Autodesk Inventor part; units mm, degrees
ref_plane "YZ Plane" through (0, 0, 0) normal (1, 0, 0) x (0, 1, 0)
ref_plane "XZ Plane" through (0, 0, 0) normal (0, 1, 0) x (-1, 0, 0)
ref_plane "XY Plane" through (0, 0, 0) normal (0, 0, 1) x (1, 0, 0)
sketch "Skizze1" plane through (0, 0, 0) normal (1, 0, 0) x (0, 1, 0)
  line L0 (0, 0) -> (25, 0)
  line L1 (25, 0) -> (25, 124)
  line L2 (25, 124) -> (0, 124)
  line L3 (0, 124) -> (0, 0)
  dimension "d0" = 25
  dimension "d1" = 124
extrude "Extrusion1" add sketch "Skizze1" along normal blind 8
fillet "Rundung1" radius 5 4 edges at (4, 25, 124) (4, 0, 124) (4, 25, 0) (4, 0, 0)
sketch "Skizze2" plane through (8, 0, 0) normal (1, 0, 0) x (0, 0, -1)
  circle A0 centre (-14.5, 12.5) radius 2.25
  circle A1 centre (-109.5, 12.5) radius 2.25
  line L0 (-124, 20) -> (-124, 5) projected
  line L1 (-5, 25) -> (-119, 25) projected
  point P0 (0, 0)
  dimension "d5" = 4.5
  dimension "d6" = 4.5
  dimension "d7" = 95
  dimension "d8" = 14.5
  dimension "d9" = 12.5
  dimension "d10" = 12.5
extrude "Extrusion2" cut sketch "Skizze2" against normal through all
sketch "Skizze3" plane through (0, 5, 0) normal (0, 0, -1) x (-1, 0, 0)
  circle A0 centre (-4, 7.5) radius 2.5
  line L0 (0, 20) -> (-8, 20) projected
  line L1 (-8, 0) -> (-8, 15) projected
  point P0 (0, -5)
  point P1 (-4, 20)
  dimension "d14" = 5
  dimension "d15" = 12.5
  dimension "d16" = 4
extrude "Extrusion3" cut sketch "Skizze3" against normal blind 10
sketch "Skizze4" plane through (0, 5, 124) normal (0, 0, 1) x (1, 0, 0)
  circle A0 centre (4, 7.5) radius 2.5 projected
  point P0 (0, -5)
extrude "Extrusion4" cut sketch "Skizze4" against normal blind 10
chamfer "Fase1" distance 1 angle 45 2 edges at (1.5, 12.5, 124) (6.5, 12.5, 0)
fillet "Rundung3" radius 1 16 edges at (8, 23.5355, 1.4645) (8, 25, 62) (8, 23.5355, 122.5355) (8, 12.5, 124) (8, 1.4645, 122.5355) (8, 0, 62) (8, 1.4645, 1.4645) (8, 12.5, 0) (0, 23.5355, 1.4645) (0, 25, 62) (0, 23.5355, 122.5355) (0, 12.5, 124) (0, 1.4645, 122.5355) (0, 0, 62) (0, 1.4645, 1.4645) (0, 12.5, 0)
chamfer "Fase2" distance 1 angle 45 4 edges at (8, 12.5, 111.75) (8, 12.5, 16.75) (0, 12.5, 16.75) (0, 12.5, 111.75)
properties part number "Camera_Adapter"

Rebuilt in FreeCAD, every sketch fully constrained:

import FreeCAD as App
import Part
import Sketcher


def edges_at(feature, points):
    """Names of the edges that pass closest to the given points."""
    edges = feature.Shape.Edges
    near = lambda p: min(range(len(edges)), key=lambda i: edges[i].distToShape(Part.Vertex(*p))[0])
    return sorted({f"Edge{near(p) + 1}" for p in points})


def add_polygon(sketch, points):
    """Adds a closed chain of lines whose ends are joined by coincident constraints."""
    first, n = sketch.GeometryCount, len(points)
    for a, b in zip(points, points[1:] + points[:1]):
        sketch.addGeometry(Part.LineSegment(App.Vector(*a, 0), App.Vector(*b, 0)), False)
    for i in range(n):
        sketch.addConstraint(Sketcher.Constraint("Coincident", first + i, 2, first + (i + 1) % n, 1))

doc = App.newDocument("Part")
body = doc.addObject("PartDesign::Body", "Body")

# Sketch on YZ plane
sketch1 = body.newObject("Sketcher::SketchObject", "Sketch")
sketch1.AttachmentSupport = (doc.getObject("YZ_Plane"), [""])
sketch1.MapMode = "FlatFace"
add_polygon(sketch1, [(0, 124), (0, 0), (25, 0), (25, 124)])  # lines 0-3
sketch1.addConstraint(Sketcher.Constraint("Vertical", 0))
sketch1.addConstraint(Sketcher.Constraint("Horizontal", 1))
sketch1.addConstraint(Sketcher.Constraint("Vertical", 2))
sketch1.addConstraint(Sketcher.Constraint("Horizontal", 3))
sketch1.addConstraint(Sketcher.Constraint("Coincident", 0, 2, -1, 1))
sketch1.addConstraint(Sketcher.Constraint("DistanceX", 1, 1, 1, 2, 25.0))
sketch1.addConstraint(Sketcher.Constraint("DistanceY", 0, 2, 0, 1, 124.0))
pad1 = body.newObject("PartDesign::Pad", "Pad")
pad1.Profile = sketch1
pad1.Length = 8
doc.recompute()

fillet = body.newObject("PartDesign::Fillet", "Fillet")
fillet.Base = (pad1, edges_at(pad1, [
    (4, 25, 124),
    (4, 0, 124),
    (4, 25, 0),
    (4, 0, 0),
]))
fillet.Radius = 5

# Sketch on YZ plane
sketch2 = body.newObject("Sketcher::SketchObject", "Sketch001")
sketch2.AttachmentSupport = (doc.getObject("YZ_Plane"), [""])
sketch2.MapMode = "FlatFace"
sketch2.AttachmentOffset = App.Placement(App.Vector(0, 0, 8), App.Rotation())
sketch2.addGeometry(Part.Circle(App.Vector(12.5, 14.5, 0), App.Vector(0, 0, 1), 2.25), False)
sketch2.addGeometry(Part.Circle(App.Vector(12.5, 109.5, 0), App.Vector(0, 0, 1), 2.25), False)
sketch2.addConstraint(Sketcher.Constraint("Equal", 0, 1))
sketch2.addConstraint(Sketcher.Constraint("Vertical", 0, 3, 1, 3))
sketch2.addConstraint(Sketcher.Constraint("Diameter", 0, 4.5))
sketch2.addConstraint(Sketcher.Constraint("DistanceY", 0, 3, 1, 3, 95.0))
sketch2.addConstraint(Sketcher.Constraint("DistanceX", -1, 1, 0, 3, 12.5))
sketch2.addConstraint(Sketcher.Constraint("DistanceY", -1, 1, 0, 3, 14.5))
pocket1 = body.newObject("PartDesign::Pocket", "Pocket")
pocket1.Profile = sketch2
pocket1.Type = "ThroughAll"

# Sketch on XY plane
sketch3 = body.newObject("Sketcher::SketchObject", "Sketch002")
sketch3.AttachmentSupport = (doc.getObject("XY_Plane"), [""])
sketch3.MapMode = "FlatFace"
sketch3.addGeometry(Part.Circle(App.Vector(4, 12.5, 0), App.Vector(0, 0, 1), 2.5), False)
sketch3.addConstraint(Sketcher.Constraint("Diameter", 0, 5.0))
sketch3.addConstraint(Sketcher.Constraint("DistanceX", -1, 1, 0, 3, 4.0))
sketch3.addConstraint(Sketcher.Constraint("DistanceY", -1, 1, 0, 3, 12.5))
pocket2 = body.newObject("PartDesign::Pocket", "Pocket001")
pocket2.Profile = sketch3
pocket2.Length = 10
pocket2.Reversed = True

# Sketch on XY plane
sketch4 = body.newObject("Sketcher::SketchObject", "Sketch003")
sketch4.AttachmentSupport = (doc.getObject("XY_Plane"), [""])
sketch4.MapMode = "FlatFace"
sketch4.AttachmentOffset = App.Placement(App.Vector(0, 0, 124), App.Rotation())
sketch4.addGeometry(Part.Circle(App.Vector(4, 12.5, 0), App.Vector(0, 0, 1), 2.5), False)
sketch4.addConstraint(Sketcher.Constraint("Diameter", 0, 5.0))
sketch4.addConstraint(Sketcher.Constraint("DistanceX", -1, 1, 0, 3, 4.0))
sketch4.addConstraint(Sketcher.Constraint("DistanceY", -1, 1, 0, 3, 12.5))
pocket3 = body.newObject("PartDesign::Pocket", "Pocket002")
pocket3.Profile = sketch4
pocket3.Length = 10
doc.recompute()

chamfer = body.newObject("PartDesign::Chamfer", "Chamfer")
chamfer.Base = (pocket3, edges_at(pocket3, [(1.5, 12.5, 124), (6.5, 12.5, 0)]))
chamfer.Size = 1
doc.recompute()

fillet2 = body.newObject("PartDesign::Fillet", "Fillet001")
fillet2.Base = (chamfer, edges_at(chamfer, [
    (8, 23.535, 1.464),
    (8, 25, 62),
    (8, 23.535, 122.535),
    (8, 12.5, 124),
    (8, 1.464, 122.535),
    (8, 0, 62),
    (8, 1.464, 1.464),
    (8, 12.5, 0),
    (0, 23.535, 1.464),
    (0, 25, 62),
    (0, 23.535, 122.535),
    (0, 12.5, 124),
    (0, 1.464, 122.535),
    (0, 0, 62),
    (0, 1.464, 1.464),
    (0, 12.5, 0),
]))
fillet2.Radius = 1
doc.recompute()

chamfer2 = body.newObject("PartDesign::Chamfer", "Chamfer001")
chamfer2.Base = (fillet2, edges_at(fillet2, [
    (8, 12.5, 111.75),
    (8, 12.5, 16.75),
    (0, 12.5, 16.75),
    (0, 12.5, 111.75),
]))
chamfer2.Size = 1

doc.recompute()
